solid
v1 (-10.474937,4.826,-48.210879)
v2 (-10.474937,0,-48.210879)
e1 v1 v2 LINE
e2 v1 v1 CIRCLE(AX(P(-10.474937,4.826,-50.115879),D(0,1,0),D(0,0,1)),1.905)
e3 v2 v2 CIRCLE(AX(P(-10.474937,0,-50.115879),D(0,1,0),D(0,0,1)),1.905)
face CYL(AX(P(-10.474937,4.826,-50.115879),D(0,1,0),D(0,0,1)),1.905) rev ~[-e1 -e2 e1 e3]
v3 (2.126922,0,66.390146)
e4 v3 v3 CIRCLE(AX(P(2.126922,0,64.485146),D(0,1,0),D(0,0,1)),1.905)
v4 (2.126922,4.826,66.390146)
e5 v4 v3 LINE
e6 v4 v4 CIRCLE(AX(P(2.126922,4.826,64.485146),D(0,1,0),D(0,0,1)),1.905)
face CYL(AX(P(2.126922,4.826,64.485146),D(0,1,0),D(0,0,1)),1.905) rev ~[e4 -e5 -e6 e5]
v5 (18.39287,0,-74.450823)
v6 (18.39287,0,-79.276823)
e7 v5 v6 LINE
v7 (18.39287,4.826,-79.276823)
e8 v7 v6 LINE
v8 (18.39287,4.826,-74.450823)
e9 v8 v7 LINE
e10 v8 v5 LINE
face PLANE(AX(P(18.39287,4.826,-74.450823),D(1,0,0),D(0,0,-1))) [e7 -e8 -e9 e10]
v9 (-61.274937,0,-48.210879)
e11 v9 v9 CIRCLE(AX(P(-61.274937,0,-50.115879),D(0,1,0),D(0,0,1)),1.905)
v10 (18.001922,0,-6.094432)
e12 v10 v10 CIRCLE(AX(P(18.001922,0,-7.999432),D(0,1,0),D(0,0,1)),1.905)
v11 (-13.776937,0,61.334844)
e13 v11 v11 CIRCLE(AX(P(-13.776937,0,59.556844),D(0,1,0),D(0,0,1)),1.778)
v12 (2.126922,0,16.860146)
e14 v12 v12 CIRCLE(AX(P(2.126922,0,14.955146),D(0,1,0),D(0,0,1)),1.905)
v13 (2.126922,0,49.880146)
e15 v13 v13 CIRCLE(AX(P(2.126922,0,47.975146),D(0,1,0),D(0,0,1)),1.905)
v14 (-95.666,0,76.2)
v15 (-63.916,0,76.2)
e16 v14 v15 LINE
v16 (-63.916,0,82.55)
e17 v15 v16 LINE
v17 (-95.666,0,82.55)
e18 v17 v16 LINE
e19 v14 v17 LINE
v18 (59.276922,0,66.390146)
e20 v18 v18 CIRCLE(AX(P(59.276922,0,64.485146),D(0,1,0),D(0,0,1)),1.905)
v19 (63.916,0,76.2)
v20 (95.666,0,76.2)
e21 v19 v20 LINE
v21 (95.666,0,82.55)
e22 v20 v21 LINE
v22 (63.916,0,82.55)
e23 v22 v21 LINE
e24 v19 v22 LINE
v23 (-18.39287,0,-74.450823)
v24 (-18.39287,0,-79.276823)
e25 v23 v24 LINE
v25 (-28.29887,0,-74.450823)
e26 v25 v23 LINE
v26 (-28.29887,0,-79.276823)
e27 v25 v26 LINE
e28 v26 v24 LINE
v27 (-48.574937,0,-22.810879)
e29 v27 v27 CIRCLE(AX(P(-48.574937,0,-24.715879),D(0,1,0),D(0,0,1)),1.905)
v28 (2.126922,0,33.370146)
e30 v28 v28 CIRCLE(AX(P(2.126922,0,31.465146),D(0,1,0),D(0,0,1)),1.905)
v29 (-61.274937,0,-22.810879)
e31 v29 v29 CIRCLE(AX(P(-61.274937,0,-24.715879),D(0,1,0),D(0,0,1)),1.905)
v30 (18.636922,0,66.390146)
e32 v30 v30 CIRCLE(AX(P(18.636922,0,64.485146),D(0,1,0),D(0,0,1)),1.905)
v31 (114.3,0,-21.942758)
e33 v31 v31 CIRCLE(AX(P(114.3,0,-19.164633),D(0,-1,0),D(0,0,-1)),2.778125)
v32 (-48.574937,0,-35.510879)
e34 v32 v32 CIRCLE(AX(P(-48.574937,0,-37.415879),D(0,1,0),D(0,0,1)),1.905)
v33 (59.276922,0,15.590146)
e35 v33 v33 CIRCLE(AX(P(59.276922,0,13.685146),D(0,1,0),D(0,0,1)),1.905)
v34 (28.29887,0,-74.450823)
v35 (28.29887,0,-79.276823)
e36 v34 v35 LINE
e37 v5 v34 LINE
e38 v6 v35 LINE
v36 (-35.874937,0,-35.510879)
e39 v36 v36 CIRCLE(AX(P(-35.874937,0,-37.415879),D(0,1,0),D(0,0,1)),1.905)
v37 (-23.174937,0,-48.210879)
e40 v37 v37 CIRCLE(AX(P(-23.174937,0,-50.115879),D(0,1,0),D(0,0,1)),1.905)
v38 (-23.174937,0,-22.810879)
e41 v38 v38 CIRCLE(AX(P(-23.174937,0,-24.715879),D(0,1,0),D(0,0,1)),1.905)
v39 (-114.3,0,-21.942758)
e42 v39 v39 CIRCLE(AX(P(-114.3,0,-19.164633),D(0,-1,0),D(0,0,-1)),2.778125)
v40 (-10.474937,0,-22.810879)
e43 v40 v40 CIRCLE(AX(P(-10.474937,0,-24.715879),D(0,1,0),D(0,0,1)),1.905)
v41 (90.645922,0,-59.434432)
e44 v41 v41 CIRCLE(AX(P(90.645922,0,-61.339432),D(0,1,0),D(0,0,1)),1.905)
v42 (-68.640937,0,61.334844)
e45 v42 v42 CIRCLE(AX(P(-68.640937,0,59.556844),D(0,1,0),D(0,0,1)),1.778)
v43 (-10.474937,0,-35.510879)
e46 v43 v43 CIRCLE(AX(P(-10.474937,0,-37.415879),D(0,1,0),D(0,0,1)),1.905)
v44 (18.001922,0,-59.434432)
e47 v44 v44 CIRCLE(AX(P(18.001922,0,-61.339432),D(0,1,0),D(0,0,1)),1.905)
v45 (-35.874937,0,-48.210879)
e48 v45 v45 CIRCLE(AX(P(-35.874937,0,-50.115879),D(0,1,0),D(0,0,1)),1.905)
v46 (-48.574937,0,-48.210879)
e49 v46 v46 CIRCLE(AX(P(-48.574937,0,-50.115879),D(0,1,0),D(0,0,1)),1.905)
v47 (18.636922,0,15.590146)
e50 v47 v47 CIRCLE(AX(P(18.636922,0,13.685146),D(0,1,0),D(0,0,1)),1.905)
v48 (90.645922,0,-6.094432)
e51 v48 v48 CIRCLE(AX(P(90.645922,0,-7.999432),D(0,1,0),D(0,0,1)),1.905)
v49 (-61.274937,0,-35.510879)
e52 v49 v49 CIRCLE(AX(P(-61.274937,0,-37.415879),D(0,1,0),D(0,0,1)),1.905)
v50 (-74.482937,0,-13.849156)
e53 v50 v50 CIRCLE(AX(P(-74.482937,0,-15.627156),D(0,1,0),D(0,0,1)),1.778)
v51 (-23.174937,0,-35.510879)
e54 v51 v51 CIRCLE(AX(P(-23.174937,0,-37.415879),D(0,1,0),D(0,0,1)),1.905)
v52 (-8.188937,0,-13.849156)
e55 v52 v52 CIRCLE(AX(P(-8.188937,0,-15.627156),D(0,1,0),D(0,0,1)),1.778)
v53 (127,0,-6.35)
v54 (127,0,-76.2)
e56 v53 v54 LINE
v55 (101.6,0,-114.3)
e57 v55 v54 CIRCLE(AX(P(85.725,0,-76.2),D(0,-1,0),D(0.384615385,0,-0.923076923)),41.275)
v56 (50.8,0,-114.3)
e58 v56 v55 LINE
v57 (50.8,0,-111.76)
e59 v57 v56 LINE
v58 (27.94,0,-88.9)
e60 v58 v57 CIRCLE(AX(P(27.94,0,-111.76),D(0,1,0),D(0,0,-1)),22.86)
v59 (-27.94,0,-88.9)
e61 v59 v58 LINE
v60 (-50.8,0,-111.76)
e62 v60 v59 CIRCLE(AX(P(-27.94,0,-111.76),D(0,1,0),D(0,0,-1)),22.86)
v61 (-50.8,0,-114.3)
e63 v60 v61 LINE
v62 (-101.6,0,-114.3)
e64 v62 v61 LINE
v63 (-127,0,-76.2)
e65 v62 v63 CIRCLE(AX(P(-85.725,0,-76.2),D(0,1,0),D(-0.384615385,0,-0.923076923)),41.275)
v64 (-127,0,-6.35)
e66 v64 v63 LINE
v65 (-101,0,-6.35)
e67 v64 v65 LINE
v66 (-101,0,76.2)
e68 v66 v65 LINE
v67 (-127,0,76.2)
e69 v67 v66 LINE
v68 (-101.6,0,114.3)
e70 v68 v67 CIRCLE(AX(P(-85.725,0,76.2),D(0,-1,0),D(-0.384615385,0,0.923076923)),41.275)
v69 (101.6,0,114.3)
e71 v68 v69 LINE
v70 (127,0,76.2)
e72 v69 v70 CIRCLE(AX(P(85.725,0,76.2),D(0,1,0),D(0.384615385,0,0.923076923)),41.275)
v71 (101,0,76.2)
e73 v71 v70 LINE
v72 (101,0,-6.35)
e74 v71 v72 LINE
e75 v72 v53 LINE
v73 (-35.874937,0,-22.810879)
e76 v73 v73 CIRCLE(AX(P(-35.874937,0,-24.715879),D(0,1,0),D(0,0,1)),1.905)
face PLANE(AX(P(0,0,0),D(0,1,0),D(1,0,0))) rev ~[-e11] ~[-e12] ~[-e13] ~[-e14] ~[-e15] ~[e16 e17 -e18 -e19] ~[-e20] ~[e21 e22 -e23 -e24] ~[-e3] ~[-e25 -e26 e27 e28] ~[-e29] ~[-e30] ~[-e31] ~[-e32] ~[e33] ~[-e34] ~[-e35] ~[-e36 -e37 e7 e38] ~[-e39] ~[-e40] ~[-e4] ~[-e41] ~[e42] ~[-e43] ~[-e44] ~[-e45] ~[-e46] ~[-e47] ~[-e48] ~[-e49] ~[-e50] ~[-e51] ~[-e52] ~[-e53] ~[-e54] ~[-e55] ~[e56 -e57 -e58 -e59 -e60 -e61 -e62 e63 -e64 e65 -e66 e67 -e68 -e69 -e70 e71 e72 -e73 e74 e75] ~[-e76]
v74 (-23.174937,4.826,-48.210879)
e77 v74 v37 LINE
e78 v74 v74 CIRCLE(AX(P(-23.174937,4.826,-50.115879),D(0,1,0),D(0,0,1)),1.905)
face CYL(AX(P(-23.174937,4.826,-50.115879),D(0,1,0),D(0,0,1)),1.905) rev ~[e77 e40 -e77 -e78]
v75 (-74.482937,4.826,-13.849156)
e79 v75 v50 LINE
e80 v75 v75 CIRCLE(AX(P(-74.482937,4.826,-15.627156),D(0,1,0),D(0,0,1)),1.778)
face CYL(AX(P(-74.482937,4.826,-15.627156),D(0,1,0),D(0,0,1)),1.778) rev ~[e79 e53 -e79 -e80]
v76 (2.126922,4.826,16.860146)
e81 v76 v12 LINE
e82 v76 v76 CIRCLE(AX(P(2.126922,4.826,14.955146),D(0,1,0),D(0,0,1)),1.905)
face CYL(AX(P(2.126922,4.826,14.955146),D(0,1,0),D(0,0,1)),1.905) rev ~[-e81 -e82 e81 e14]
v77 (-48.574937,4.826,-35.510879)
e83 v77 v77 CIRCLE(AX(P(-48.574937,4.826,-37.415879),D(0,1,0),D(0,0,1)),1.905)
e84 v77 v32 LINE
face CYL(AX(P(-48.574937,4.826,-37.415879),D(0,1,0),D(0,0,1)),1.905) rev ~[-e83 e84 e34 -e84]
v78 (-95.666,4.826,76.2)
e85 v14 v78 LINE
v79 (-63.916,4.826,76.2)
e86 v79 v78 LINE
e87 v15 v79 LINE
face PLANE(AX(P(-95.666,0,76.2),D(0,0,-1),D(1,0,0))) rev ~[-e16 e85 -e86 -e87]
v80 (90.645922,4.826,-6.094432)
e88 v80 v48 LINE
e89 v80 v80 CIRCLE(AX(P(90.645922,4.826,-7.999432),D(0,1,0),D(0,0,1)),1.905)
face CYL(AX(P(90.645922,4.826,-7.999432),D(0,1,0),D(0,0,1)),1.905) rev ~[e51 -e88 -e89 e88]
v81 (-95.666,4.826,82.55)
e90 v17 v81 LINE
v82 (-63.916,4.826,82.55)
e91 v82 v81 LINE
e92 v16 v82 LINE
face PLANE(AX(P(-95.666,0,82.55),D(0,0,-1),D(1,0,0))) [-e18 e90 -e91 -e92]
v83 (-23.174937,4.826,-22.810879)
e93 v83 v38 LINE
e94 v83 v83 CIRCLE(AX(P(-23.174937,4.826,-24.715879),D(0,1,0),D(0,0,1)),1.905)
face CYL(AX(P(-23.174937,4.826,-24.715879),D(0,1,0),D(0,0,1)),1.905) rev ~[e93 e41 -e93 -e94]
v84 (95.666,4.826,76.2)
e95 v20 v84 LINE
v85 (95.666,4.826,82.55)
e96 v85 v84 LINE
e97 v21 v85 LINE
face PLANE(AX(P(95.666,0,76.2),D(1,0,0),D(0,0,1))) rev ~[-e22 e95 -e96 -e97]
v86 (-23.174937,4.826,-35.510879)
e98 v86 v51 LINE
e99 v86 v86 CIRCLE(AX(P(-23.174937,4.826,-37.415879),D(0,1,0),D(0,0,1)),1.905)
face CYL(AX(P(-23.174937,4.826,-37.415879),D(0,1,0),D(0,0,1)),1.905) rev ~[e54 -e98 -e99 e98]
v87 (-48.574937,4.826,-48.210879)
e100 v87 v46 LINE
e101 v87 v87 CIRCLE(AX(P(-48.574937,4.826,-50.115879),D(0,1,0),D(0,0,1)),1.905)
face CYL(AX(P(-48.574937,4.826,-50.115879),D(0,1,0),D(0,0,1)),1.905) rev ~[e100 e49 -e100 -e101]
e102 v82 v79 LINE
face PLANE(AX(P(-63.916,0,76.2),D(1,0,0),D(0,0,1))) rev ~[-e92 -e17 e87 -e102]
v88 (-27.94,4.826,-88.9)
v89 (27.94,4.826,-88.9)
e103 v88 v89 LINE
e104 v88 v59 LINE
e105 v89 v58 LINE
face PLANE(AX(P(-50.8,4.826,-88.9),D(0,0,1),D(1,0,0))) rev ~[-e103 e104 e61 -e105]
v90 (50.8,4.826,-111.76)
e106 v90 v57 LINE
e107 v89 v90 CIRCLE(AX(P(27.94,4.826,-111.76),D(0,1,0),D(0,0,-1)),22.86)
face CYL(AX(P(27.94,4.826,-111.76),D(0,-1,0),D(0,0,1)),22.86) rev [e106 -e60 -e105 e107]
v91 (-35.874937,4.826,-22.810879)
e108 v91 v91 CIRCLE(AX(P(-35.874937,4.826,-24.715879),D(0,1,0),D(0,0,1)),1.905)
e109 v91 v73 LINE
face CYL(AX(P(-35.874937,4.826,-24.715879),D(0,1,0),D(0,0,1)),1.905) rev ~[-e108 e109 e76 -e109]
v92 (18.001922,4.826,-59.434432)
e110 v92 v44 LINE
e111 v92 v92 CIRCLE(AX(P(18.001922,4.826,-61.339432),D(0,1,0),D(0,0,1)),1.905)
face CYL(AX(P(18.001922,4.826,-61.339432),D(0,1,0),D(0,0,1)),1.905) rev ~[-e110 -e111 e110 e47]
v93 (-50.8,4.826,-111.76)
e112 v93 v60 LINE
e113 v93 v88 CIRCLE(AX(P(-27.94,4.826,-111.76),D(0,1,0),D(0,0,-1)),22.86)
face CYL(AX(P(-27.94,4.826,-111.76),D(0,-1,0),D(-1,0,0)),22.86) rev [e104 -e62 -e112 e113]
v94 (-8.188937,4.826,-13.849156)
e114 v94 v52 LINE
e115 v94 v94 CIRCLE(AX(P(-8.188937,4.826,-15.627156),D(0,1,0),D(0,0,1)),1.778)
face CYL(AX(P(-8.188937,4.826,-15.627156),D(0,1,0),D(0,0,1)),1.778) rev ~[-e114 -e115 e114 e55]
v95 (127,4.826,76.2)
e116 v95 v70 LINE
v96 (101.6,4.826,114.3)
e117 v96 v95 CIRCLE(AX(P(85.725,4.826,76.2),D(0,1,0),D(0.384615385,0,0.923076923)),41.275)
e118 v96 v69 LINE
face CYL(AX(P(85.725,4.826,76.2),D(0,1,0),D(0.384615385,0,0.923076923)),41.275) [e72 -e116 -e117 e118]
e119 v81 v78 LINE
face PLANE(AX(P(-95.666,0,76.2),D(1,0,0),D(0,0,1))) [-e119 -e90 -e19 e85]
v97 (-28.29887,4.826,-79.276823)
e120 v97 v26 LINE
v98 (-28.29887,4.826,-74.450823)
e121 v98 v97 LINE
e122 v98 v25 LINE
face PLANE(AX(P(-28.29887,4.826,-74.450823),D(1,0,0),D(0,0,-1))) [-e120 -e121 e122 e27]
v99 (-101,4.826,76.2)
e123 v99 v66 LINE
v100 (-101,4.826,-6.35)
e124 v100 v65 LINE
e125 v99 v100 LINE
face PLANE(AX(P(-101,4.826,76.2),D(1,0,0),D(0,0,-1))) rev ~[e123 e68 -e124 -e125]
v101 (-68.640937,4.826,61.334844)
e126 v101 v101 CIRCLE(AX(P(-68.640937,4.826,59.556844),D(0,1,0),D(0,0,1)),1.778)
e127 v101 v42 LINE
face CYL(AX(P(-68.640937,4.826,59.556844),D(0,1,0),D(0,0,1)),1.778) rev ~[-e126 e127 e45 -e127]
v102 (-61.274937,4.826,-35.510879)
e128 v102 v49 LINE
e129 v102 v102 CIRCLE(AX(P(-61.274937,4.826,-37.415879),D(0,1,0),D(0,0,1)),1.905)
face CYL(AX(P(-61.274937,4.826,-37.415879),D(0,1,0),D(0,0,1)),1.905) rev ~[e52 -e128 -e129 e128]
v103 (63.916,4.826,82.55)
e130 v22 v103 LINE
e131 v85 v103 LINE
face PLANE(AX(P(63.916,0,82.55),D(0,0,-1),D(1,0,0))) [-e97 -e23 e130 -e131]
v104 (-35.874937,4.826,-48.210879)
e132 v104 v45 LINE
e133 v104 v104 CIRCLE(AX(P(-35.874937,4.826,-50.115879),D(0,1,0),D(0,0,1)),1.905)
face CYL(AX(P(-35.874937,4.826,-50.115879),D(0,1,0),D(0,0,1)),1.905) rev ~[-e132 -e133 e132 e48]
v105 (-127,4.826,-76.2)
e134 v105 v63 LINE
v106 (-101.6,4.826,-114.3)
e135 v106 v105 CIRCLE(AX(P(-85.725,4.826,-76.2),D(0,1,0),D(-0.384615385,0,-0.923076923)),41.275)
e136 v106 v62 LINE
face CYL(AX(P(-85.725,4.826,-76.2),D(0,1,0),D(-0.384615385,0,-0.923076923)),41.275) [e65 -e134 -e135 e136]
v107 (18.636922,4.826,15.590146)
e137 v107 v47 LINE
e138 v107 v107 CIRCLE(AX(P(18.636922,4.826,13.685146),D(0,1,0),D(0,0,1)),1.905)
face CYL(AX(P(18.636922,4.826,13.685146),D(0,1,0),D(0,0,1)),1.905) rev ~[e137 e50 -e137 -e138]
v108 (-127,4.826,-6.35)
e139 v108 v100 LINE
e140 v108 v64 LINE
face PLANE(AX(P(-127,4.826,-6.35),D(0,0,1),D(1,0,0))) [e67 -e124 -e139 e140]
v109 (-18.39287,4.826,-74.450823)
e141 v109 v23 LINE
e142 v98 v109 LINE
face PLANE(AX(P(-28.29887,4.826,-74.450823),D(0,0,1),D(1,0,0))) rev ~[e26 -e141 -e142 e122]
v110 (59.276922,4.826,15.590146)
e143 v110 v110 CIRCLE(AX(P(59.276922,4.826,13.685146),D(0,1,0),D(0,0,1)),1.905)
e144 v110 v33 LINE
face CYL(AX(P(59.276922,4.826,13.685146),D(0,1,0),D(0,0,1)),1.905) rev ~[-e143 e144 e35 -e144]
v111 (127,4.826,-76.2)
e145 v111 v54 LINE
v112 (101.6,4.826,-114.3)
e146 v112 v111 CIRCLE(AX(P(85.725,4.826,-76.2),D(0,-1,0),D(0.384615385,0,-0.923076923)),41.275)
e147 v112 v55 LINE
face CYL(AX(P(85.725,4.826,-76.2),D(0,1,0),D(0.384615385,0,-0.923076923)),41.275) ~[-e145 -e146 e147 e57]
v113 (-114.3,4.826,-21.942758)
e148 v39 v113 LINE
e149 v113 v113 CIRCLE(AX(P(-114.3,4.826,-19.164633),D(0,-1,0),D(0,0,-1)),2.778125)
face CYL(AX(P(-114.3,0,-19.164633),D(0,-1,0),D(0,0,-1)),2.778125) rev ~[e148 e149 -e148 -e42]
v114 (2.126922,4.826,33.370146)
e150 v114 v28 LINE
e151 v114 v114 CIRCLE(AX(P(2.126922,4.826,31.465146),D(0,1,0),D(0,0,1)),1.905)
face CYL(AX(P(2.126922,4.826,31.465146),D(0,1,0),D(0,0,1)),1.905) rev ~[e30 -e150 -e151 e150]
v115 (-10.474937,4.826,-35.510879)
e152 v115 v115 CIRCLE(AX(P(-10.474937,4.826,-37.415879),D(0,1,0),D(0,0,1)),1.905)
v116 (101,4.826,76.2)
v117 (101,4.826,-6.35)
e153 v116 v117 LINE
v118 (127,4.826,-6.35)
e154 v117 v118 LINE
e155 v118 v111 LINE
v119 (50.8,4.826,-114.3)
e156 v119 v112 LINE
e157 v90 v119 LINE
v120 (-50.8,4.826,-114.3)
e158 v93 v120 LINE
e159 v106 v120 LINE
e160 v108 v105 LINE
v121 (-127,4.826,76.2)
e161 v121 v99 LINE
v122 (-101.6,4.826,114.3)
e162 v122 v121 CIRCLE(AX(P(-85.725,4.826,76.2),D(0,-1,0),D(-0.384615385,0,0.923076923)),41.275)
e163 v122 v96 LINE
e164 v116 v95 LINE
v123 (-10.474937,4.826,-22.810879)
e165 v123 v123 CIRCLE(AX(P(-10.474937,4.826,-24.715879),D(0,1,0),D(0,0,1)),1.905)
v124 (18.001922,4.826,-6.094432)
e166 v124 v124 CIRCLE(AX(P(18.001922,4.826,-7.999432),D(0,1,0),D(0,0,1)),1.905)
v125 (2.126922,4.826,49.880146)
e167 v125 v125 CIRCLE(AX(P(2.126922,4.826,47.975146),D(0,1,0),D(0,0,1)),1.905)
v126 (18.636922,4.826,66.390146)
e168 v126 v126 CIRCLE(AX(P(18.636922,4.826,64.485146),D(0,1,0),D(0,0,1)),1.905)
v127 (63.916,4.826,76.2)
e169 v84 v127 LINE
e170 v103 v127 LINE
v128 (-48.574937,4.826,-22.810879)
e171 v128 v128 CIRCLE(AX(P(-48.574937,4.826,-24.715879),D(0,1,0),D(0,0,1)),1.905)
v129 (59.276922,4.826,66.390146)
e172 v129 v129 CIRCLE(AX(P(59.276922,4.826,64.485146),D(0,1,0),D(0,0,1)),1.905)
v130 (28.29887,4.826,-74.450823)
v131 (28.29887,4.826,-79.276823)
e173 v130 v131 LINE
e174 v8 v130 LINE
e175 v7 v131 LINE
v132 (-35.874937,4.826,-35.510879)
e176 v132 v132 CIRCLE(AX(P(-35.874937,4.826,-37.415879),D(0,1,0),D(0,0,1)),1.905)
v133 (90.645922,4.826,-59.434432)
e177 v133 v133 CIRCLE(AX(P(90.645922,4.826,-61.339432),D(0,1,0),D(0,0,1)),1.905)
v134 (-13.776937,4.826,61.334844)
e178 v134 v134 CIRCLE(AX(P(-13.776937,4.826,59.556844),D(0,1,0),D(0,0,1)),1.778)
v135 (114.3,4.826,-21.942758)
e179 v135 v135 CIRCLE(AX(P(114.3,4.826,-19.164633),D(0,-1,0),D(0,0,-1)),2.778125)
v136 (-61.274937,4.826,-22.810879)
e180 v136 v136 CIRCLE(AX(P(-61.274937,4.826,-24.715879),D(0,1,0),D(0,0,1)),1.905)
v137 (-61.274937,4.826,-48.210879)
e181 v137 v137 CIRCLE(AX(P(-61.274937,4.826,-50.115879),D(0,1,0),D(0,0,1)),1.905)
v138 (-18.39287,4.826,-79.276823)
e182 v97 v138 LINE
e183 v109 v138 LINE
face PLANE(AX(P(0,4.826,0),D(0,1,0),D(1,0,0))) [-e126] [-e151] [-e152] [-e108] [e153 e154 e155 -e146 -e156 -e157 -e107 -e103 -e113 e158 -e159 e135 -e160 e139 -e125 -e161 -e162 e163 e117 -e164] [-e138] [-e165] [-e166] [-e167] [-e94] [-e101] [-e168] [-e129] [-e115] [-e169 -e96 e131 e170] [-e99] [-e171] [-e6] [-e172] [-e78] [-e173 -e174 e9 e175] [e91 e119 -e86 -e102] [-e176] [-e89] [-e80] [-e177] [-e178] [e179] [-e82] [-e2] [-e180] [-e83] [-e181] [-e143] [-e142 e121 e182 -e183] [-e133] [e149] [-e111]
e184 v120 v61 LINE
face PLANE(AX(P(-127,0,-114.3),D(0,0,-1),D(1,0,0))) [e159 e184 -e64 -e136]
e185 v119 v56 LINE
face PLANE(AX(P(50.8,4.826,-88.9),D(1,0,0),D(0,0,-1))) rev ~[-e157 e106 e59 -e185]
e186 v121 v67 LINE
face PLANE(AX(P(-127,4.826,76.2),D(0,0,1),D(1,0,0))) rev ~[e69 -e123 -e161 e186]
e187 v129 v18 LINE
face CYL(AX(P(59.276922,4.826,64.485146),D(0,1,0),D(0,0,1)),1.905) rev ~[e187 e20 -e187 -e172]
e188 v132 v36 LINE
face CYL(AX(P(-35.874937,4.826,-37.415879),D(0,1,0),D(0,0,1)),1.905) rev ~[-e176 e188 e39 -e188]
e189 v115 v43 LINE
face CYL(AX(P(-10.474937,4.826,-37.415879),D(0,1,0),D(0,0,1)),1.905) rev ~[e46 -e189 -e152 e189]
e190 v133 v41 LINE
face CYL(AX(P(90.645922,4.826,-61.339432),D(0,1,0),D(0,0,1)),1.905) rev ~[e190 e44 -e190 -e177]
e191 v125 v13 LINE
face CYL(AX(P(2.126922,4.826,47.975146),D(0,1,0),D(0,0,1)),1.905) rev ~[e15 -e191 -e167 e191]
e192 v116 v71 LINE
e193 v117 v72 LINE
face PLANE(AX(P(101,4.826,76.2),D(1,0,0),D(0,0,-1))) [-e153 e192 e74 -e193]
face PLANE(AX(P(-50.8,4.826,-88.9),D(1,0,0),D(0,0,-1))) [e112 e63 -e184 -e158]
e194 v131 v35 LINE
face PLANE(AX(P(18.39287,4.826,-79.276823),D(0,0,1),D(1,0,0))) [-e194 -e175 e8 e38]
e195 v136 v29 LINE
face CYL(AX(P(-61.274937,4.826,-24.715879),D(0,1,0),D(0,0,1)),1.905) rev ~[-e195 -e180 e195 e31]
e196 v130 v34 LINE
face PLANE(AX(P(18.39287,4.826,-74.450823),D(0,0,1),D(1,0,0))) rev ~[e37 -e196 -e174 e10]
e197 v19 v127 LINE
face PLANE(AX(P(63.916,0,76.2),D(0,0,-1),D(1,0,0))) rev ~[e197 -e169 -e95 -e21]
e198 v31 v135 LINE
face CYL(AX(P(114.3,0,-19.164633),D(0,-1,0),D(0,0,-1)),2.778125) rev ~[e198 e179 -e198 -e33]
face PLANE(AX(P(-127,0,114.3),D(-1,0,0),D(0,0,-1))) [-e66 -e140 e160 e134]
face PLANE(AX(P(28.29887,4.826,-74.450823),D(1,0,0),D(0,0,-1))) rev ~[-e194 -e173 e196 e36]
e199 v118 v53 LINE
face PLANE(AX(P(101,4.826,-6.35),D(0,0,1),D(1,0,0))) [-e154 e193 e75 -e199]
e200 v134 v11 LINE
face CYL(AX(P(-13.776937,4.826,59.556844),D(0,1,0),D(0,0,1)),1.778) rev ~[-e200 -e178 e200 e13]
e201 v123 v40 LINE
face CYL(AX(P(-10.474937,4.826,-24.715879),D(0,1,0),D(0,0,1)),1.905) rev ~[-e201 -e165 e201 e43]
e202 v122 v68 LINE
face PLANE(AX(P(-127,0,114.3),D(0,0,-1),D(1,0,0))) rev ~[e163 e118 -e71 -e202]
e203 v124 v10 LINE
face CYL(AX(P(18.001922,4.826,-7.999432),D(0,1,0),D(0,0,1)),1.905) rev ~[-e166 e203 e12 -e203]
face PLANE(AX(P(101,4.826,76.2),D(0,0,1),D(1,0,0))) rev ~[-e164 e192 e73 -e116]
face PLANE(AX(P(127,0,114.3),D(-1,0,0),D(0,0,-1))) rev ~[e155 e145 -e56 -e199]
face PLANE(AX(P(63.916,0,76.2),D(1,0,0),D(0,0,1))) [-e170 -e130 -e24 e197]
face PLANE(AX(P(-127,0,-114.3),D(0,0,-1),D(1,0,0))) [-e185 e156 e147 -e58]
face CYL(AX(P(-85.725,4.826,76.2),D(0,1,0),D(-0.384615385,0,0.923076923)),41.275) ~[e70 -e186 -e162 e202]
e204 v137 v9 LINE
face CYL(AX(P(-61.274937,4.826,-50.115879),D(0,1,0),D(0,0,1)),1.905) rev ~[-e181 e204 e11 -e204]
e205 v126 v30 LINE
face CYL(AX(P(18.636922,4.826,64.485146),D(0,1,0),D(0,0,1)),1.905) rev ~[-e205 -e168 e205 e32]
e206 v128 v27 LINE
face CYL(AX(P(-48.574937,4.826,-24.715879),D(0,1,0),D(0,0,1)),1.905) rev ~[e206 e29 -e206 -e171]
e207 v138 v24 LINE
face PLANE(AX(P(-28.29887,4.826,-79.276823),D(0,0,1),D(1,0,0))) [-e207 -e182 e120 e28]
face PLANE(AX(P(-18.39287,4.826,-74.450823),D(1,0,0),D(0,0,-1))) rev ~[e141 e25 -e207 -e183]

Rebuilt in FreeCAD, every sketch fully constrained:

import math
import FreeCAD as App
import Part
import Sketcher
from FreeCAD import Vector
Q = App.Units.Quantity


def edges_at(feature, points):
    """Names of the edges that pass closest to the given points."""
    edges = feature.Shape.Edges
    near = lambda p: min(range(len(edges)), key=lambda i: edges[i].distToShape(Part.Vertex(*p))[0])
    return sorted({f"Edge{near(p) + 1}" for p in points})


def add_polygon(sketch, points):
    """Adds a closed chain of lines whose ends are joined by coincident constraints."""
    first, n = sketch.GeometryCount, len(points)
    for a, b in zip(points, points[1:] + points[:1]):
        sketch.addGeometry(Part.LineSegment(App.Vector(*a, 0), App.Vector(*b, 0)), False)
    for i in range(n):
        sketch.addConstraint(Sketcher.Constraint("Coincident", first + i, 2, first + (i + 1) % n, 1))

doc = App.newDocument("Part")
body = doc.addObject("PartDesign::Body", "Body")

sketch1 = body.newObject("Sketcher::SketchObject", "Sketch")
sketch1.AttachmentSupport = (doc.getObject("XZ_Plane"), [""])
sketch1.MapMode = "FlatFace"
add_polygon(sketch1, [(-127, -114), (-127, 114), (127, 114), (127, -114)])
sketch1.addConstraint([
    Sketcher.Constraint("Vertical", 0),
    Sketcher.Constraint("Horizontal", 1),
    Sketcher.Constraint("Vertical", 2),
    Sketcher.Constraint("Horizontal", 3),
    Sketcher.Constraint("Symmetric", 0, 2, 2, 2, -1, 1),
    Sketcher.Constraint("DistanceX", 1, 1, 1, 2, Q("10 in")),
    Sketcher.Constraint("DistanceY", 0, 1, 0, 2, Q("9 in")),
])
pad1 = body.newObject("PartDesign::Pad", "Pad")
pad1.Profile = sketch1
pad1.Length = Q("0.19 in")
pad1.Reversed = True

sketch2 = body.newObject("Sketcher::SketchObject", "Sketch001")
sketch2.AttachmentSupport = (doc.getObject("XZ_Plane"), [""])
sketch2.MapMode = "FlatFace"
sketch2.AttachmentOffset = App.Placement(Vector(0, 0, -0.19 * 25.4), App.Rotation())
add_polygon(sketch2, [(-127, -6), (-127, 76), (-101, 76), (-101, -6)])
add_polygon(sketch2, [(101, -6), (101, 76), (127, 76), (127, -6)])
sketch2.addConstraint([
    Sketcher.Constraint("Vertical", 0),
    Sketcher.Constraint("Horizontal", 1),
    Sketcher.Constraint("Vertical", 2),
    Sketcher.Constraint("Horizontal", 3),
    Sketcher.Constraint("Vertical", 4),
    Sketcher.Constraint("Horizontal", 5),
    Sketcher.Constraint("Vertical", 6),
    Sketcher.Constraint("Horizontal", 7),
    Sketcher.Constraint("Symmetric", 1, 2, 4, 2, -2),
    Sketcher.Constraint("Symmetric", 3, 2, 6, 2, -2),
    Sketcher.Constraint("DistanceX", 0, 2, -1, 1, Q("5 in")),
    Sketcher.Constraint("DistanceY", -1, 1, 0, 2, Q("3 in")),
    Sketcher.Constraint("DistanceY", 0, 1, 0, 2, Q("3.25 in")),
    Sketcher.Constraint("DistanceX", 1, 1, 1, 2, Q("26 mm")),
])
pocket1 = body.newObject("PartDesign::Pocket", "Pocket")
pocket1.Profile = sketch2
pocket1.Length = Q("0.19 in")
pocket1.Reversed = True

sketch3 = body.newObject("Sketcher::SketchObject", "Sketch002")
sketch3.AttachmentSupport = (doc.getObject("XZ_Plane"), [""])
sketch3.MapMode = "FlatFace"
sketch3.AttachmentOffset = App.Placement(Vector(0, 0, -0.19 * 25.4), App.Rotation())
sketch3.addGeometry([
    Part.LineSegment(Vector(-127, -114, 0), Vector(-127, -76, 0)),
    Part.ArcOfCircle(Part.Circle(Vector(-86, -76, 0), Vector(0, 0, 1), 41), math.radians(180), math.radians(247)),
    Part.LineSegment(Vector(-102, -114, 0), Vector(-127, -114, 0)),
    Part.LineSegment(Vector(127, -76, 0), Vector(127, -114, 0)),
    Part.LineSegment(Vector(127, -114, 0), Vector(102, -114, 0)),
    Part.ArcOfCircle(Part.Circle(Vector(86, -76, 0), Vector(0, 0, 1), 41), math.radians(-67), math.radians(0)),
], False)
sketch3.addConstraint([
    Sketcher.Constraint("Tangent", 0, 2, 1, 1),
    Sketcher.Constraint("Coincident", 1, 2, 2, 1),
    Sketcher.Constraint("Coincident", 2, 2, 0, 1),
    Sketcher.Constraint("Coincident", 3, 2, 4, 1),
    Sketcher.Constraint("Coincident", 4, 2, 5, 1),
    Sketcher.Constraint("Tangent", 5, 2, 3, 1),
    Sketcher.Constraint("Vertical", 0),
    Sketcher.Constraint("Horizontal", 2),
    Sketcher.Constraint("Vertical", 3),
    Sketcher.Constraint("Horizontal", 4),
    Sketcher.Constraint("Equal", 1, 5),
    Sketcher.Constraint("Symmetric", 1, 3, 5, 3, -2),
    Sketcher.Constraint("Horizontal", 2, 2, 3, 2),
    Sketcher.Constraint("DistanceX", 2, 2, 2, 1, Q("1 in")),
    Sketcher.Constraint("DistanceY", 0, 1, 0, 2, Q("1.5 in")),
    Sketcher.Constraint("DistanceY", 1, 3, -1, 1, Q("3 in")),
    Sketcher.Constraint("DistanceX", 0, 2, -1, 1, Q("5 in")),
])
pocket2 = body.newObject("PartDesign::Pocket", "Pocket001")
pocket2.Profile = sketch3
pocket2.Length = Q("0.19 in")
pocket2.Reversed = True

sketch4 = body.newObject("Sketcher::SketchObject", "Sketch003")
sketch4.AttachmentSupport = (doc.getObject("XZ_Plane"), [""])
sketch4.MapMode = "FlatFace"
sketch4.AttachmentOffset = App.Placement(Vector(0, 0, -0.19 * 25.4), App.Rotation())
add_polygon(sketch4, [(-51, -114), (-51, -89), (51, -89), (51, -114)])
sketch4.addConstraint([
    Sketcher.Constraint("Vertical", 0),
    Sketcher.Constraint("Horizontal", 1),
    Sketcher.Constraint("Vertical", 2),
    Sketcher.Constraint("Horizontal", 3),
    Sketcher.Constraint("DistanceX", 1, 1, 1, 2, Q("4 in")),
    Sketcher.Constraint("DistanceY", 0, 1, 0, 2, Q("1 in")),
    Sketcher.Constraint("DistanceX", 0, 2, -1, 1, Q("2 in")),
    Sketcher.Constraint("DistanceY", 0, 2, -1, 1, Q("3.5 in")),
])
pocket3 = body.newObject("PartDesign::Pocket", "Pocket002")
pocket3.Profile = sketch4
pocket3.Length = Q("0.19 in")
pocket3.Reversed = True
doc.recompute()

fillet = body.newObject("PartDesign::Fillet", "Fillet")
fillet.Base = (pocket3, edges_at(pocket3, [(-50.8, 2.413, -88.9)]))
fillet.Radius = Q("0.9 in")
doc.recompute()

fillet2 = body.newObject("PartDesign::Fillet", "Fillet001")
fillet2.Base = (fillet, edges_at(fillet, [(50.8, 2.413, -88.9)]))
fillet2.Radius = Q("0.9 in")

sketch5 = body.newObject("Sketcher::SketchObject", "Sketch004")
sketch5.AttachmentSupport = (doc.getObject("XZ_Plane"), [""])
sketch5.MapMode = "FlatFace"
sketch5.AttachmentOffset = App.Placement(Vector(0, 0, -0.19 * 25.4), App.Rotation())
sketch5.addGeometry([
    Part.LineSegment(Vector(-127, 76, 0), Vector(-127, 114, 0)),
    Part.LineSegment(Vector(-127, 114, 0), Vector(-102, 114, 0)),
    Part.ArcOfCircle(Part.Circle(Vector(-86, 76, 0), Vector(0, 0, 1), 41), math.radians(113), math.radians(180)),
    Part.LineSegment(Vector(102, 114, 0), Vector(127, 114, 0)),
    Part.LineSegment(Vector(127, 114, 0), Vector(127, 76, 0)),
    Part.ArcOfCircle(Part.Circle(Vector(86, 76, 0), Vector(0, 0, 1), 41), math.radians(0), math.radians(67)),
], False)
sketch5.addConstraint([
    Sketcher.Constraint("Coincident", 0, 2, 1, 1),
    Sketcher.Constraint("Coincident", 1, 2, 2, 1),
    Sketcher.Constraint("Tangent", 2, 2, 0, 1),
    Sketcher.Constraint("Coincident", 3, 2, 4, 1),
    Sketcher.Constraint("Tangent", 4, 2, 5, 1),
    Sketcher.Constraint("Coincident", 5, 2, 3, 1),
    Sketcher.Constraint("Vertical", 0),
    Sketcher.Constraint("Horizontal", 1),
    Sketcher.Constraint("Horizontal", 3),
    Sketcher.Constraint("Vertical", 4),
    Sketcher.Constraint("Equal", 2, 5),
    Sketcher.Constraint("Symmetric", 2, 3, 5, 3, -2),
    Sketcher.Constraint("Horizontal", 1, 2, 3, 2),
    Sketcher.Constraint("DistanceX", 1, 1, 1, 2, Q("1 in")),
    Sketcher.Constraint("DistanceY", 0, 1, 0, 2, Q("1.5 in")),
    Sketcher.Constraint("DistanceY", -1, 1, 2, 3, Q("3 in")),
    Sketcher.Constraint("DistanceX", 0, 2, -1, 1, Q("5 in")),
])
pocket4 = body.newObject("PartDesign::Pocket", "Pocket003")
pocket4.Profile = sketch5
pocket4.Length = Q("0.19 in")
pocket4.Reversed = True

sketch6 = body.newObject("Sketcher::SketchObject", "Sketch005")
sketch6.AttachmentSupport = (doc.getObject("XZ_Plane"), [""])
sketch6.MapMode = "FlatFace"
add_polygon(sketch6, [(-96, 83), (-96, 76), (-64, 76), (-64, 83)])
add_polygon(sketch6, [(64, 83), (64, 76), (96, 76), (96, 83)])
sketch6.addConstraint([
    Sketcher.Constraint("Vertical", 0),
    Sketcher.Constraint("Horizontal", 1),
    Sketcher.Constraint("Vertical", 2),
    Sketcher.Constraint("Horizontal", 3),
    Sketcher.Constraint("Vertical", 4),
    Sketcher.Constraint("Horizontal", 5),
    Sketcher.Constraint("Vertical", 6),
    Sketcher.Constraint("Horizontal", 7),
    Sketcher.Constraint("Symmetric", 1, 2, 4, 2, -2),
    Sketcher.Constraint("Symmetric", 3, 2, 6, 2, -2),
    Sketcher.Constraint("DistanceY", -1, 1, 0, 2, Q("3 in")),
    Sketcher.Constraint("DistanceX", 1, 1, 1, 2, Q("1.25 in")),
    Sketcher.Constraint("DistanceY", 0, 2, 0, 1, Q("0.25 in")),
    Sketcher.Constraint("DistanceX", 0, 2, -1, 1, Q("95.666 mm")),
])
pocket5 = body.newObject("PartDesign::Pocket", "Pocket004")
pocket5.Profile = sketch6
pocket5.Type = "ThroughAll"

sketch7 = body.newObject("Sketcher::SketchObject", "Sketch006")
sketch7.AttachmentSupport = (doc.getObject("XZ_Plane"), [""])
sketch7.MapMode = "FlatFace"
sketch7.AttachmentOffset = App.Placement(Vector(0, 0, -0.19 * 25.4), App.Rotation())
add_polygon(sketch7, [(-28.3, -79.3), (-28.3, -74.5), (-18.4, -74.5), (-18.4, -79.3)])
add_polygon(sketch7, [(18.4, -79.3), (18.4, -74.5), (28.3, -74.5), (28.3, -79.3)])
sketch7.addConstraint([
    Sketcher.Constraint("Vertical", 0),
    Sketcher.Constraint("Horizontal", 1),
    Sketcher.Constraint("Vertical", 2),
    Sketcher.Constraint("Horizontal", 3),
    Sketcher.Constraint("Vertical", 4),
    Sketcher.Constraint("Horizontal", 5),
    Sketcher.Constraint("Vertical", 6),
    Sketcher.Constraint("Horizontal", 7),
    Sketcher.Constraint("Symmetric", 1, 2, 4, 2, -2),
    Sketcher.Constraint("Symmetric", 3, 2, 6, 2, -2),
    Sketcher.Constraint("DistanceX", 1, 1, 1, 2, Q("0.39 in")),
    Sketcher.Constraint("DistanceY", 0, 1, 0, 2, Q("0.19 in")),
    Sketcher.Constraint("DistanceX", 0, 2, -1, 1, Q("28.29887 mm")),
    Sketcher.Constraint("DistanceY", 0, 2, -1, 1, Q("74.450823 mm")),
])
pocket6 = body.newObject("PartDesign::Pocket", "Pocket005")
pocket6.Profile = sketch7
pocket6.Type = "ThroughAll"
pocket6.Reversed = True

sketch8 = body.newObject("Sketcher::SketchObject", "Sketch007")
sketch8.AttachmentSupport = (doc.getObject("XZ_Plane"), [""])
sketch8.MapMode = "FlatFace"
sketch8.AttachmentOffset = App.Placement(Vector(0, 0, -0.19 * 25.4), App.Rotation())
sketch8.addGeometry([
    Part.Circle(Vector(-10.5, -24.7, 0), Vector(0, 0, 1), 1.9),
    Part.Circle(Vector(-23.2, -24.7, 0), Vector(0, 0, 1), 1.9),
    Part.Circle(Vector(-35.9, -24.7, 0), Vector(0, 0, 1), 1.9),
    Part.Circle(Vector(-48.6, -24.7, 0), Vector(0, 0, 1), 1.9),
    Part.Circle(Vector(-61.3, -24.7, 0), Vector(0, 0, 1), 1.9),
    Part.Circle(Vector(-23.2, -37.4, 0), Vector(0, 0, 1), 1.9),
    Part.Circle(Vector(-35.9, -37.4, 0), Vector(0, 0, 1), 1.9),
    Part.Circle(Vector(-48.6, -37.4, 0), Vector(0, 0, 1), 1.9),
    Part.Circle(Vector(-61.3, -37.4, 0), Vector(0, 0, 1), 1.9),
    Part.Circle(Vector(-23.2, -50.1, 0), Vector(0, 0, 1), 1.9),
    Part.Circle(Vector(-35.9, -50.1, 0), Vector(0, 0, 1), 1.9),
    Part.Circle(Vector(-48.6, -50.1, 0), Vector(0, 0, 1), 1.9),
    Part.Circle(Vector(-61.3, -50.1, 0), Vector(0, 0, 1), 1.9),
    Part.Circle(Vector(-10.5, -37.4, 0), Vector(0, 0, 1), 1.9),
    Part.Circle(Vector(-10.5, -50.1, 0), Vector(0, 0, 1), 1.9),
], False)
sketch8.addConstraint([
    Sketcher.Constraint("Equal", 0, 1),
    Sketcher.Constraint("Equal", 1, 2),
    Sketcher.Constraint("Equal", 2, 3),
    Sketcher.Constraint("Equal", 3, 4),
    Sketcher.Constraint("Equal", 4, 5),
    Sketcher.Constraint("Equal", 5, 6),
    Sketcher.Constraint("Equal", 6, 7),
    Sketcher.Constraint("Equal", 7, 8),
    Sketcher.Constraint("Equal", 8, 9),
    Sketcher.Constraint("Equal", 9, 10),
    Sketcher.Constraint("Equal", 10, 11),
    Sketcher.Constraint("Equal", 11, 12),
    Sketcher.Constraint("Equal", 12, 13),
    Sketcher.Constraint("Equal", 13, 14),
    Sketcher.Constraint("Horizontal", 0, 3, 1, 3),
    Sketcher.Constraint("Horizontal", 1, 3, 2, 3),
    Sketcher.Constraint("Horizontal", 2, 3, 3, 3),
    Sketcher.Constraint("Horizontal", 3, 3, 4, 3),
    Sketcher.Constraint("Horizontal", 5, 3, 6, 3),
    Sketcher.Constraint("Horizontal", 6, 3, 7, 3),
    Sketcher.Constraint("Horizontal", 7, 3, 8, 3),
    Sketcher.Constraint("Horizontal", 9, 3, 10, 3),
    Sketcher.Constraint("Horizontal", 10, 3, 11, 3),
    Sketcher.Constraint("Horizontal", 11, 3, 12, 3),
    Sketcher.Constraint("Horizontal", 8, 3, 13, 3),
    Sketcher.Constraint("Horizontal", 12, 3, 14, 3),
    Sketcher.Constraint("Vertical", 1, 3, 5, 3),
    Sketcher.Constraint("Vertical", 2, 3, 6, 3),
    Sketcher.Constraint("Vertical", 3, 3, 7, 3),
    Sketcher.Constraint("Vertical", 4, 3, 8, 3),
    Sketcher.Constraint("Vertical", 5, 3, 9, 3),
    Sketcher.Constraint("Vertical", 6, 3, 10, 3),
    Sketcher.Constraint("Vertical", 7, 3, 11, 3),
    Sketcher.Constraint("Vertical", 8, 3, 12, 3),
    Sketcher.Constraint("Vertical", 0, 3, 13, 3),
    Sketcher.Constraint("Vertical", 13, 3, 14, 3),
    Sketcher.Constraint("Diameter", 0, Q("0.15 in")),
    Sketcher.Constraint("DistanceX", 2, 3, 0, 3, Q("1 in")),
    Sketcher.Constraint("DistanceX", 3, 3, 1, 3, Q("1 in")),
    Sketcher.Constraint("DistanceX", 4, 3, 2, 3, Q("1 in")),
    Sketcher.Constraint("DistanceY", 9, 3, 1, 3, Q("1 in")),
    Sketcher.Constraint("DistanceX", 1, 3, 0, 3, Q("0.5 in")),
    Sketcher.Constraint("DistanceY", 5, 3, 1, 3, Q("0.5 in")),
    Sketcher.Constraint("DistanceY", 0, 3, -1, 1, Q("24.715879 mm")),
    Sketcher.Constraint("DistanceX", 0, 3, -1, 1, Q("10.474937 mm")),
])
pocket7 = body.newObject("PartDesign::Pocket", "Pocket006")
pocket7.Profile = sketch8
pocket7.Type = "ThroughAll"
pocket7.Reversed = True

sketch9 = body.newObject("Sketcher::SketchObject", "Sketch008")
sketch9.AttachmentSupport = (doc.getObject("XZ_Plane"), [""])
sketch9.MapMode = "FlatFace"
sketch9.AttachmentOffset = App.Placement(Vector(0, 0, -0.19 * 25.4), App.Rotation())
sketch9.addGeometry([
    Part.Circle(Vector(-68.6, 59.6, 0), Vector(0, 0, 1), 1.8),
    Part.Circle(Vector(-13.8, 59.6, 0), Vector(0, 0, 1), 1.8),
    Part.Circle(Vector(-74.5, -15.6, 0), Vector(0, 0, 1), 1.8),
    Part.Circle(Vector(-8.2, -15.6, 0), Vector(0, 0, 1), 1.8),
], False)
sketch9.addConstraint([
    Sketcher.Constraint("Equal", 0, 1),
    Sketcher.Constraint("Equal", 1, 2),
    Sketcher.Constraint("Equal", 2, 3),
    Sketcher.Constraint("Horizontal", 0, 3, 1, 3),
    Sketcher.Constraint("Horizontal", 2, 3, 3, 3),
    Sketcher.Constraint("Diameter", 0, Q("0.14 in")),
    Sketcher.Constraint("DistanceX", 0, 3, 1, 3, Q("2.16 in")),
    Sketcher.Constraint("DistanceX", 2, 3, 0, 3, Q("0.23 in")),
    Sketcher.Constraint("DistanceY", 2, 3, 0, 3, Q("2.96 in")),
    Sketcher.Constraint("DistanceX", 2, 3, 3, 3, Q("2.61 in")),
    Sketcher.Constraint("DistanceX", 0, 3, -1, 1, Q("68.640937 mm")),
    Sketcher.Constraint("DistanceY", -1, 1, 0, 3, Q("59.556844 mm")),
])
pocket8 = body.newObject("PartDesign::Pocket", "Pocket007")
pocket8.Profile = sketch9
pocket8.Type = "ThroughAll"
pocket8.Reversed = True

sketch10 = body.newObject("Sketcher::SketchObject", "Sketch009")
sketch10.AttachmentSupport = (doc.getObject("XZ_Plane"), [""])
sketch10.MapMode = "FlatFace"
sketch10.AttachmentOffset = App.Placement(Vector(0, 0, -0.19 * 25.4), App.Rotation())
sketch10.addGeometry([
    Part.Circle(Vector(59.3, 64.5, 0), Vector(0, 0, 1), 1.9),
    Part.Circle(Vector(18.6, 64.5, 0), Vector(0, 0, 1), 1.9),
    Part.Circle(Vector(59.3, 13.7, 0), Vector(0, 0, 1), 1.9),
    Part.Circle(Vector(18.6, 13.7, 0), Vector(0, 0, 1), 1.9),
], False)
sketch10.addConstraint([
    Sketcher.Constraint("Equal", 0, 1),
    Sketcher.Constraint("Equal", 1, 2),
    Sketcher.Constraint("Equal", 2, 3),
    Sketcher.Constraint("Horizontal", 0, 3, 1, 3),
    Sketcher.Constraint("Horizontal", 2, 3, 3, 3),
    Sketcher.Constraint("Vertical", 0, 3, 2, 3),
    Sketcher.Constraint("Vertical", 1, 3, 3, 3),
    Sketcher.Constraint("Diameter", 0, Q("0.15 in")),
    Sketcher.Constraint("DistanceY", 2, 3, 0, 3, Q("2 in")),
    Sketcher.Constraint("DistanceX", 1, 3, 0, 3, Q("1.6 in")),
    Sketcher.Constraint("DistanceX", -1, 1, 0, 3, Q("59.276922 mm")),
    Sketcher.Constraint("DistanceY", -1, 1, 0, 3, Q("64.485146 mm")),
])
pocket9 = body.newObject("PartDesign::Pocket", "Pocket008")
pocket9.Profile = sketch10
pocket9.Type = "ThroughAll"
pocket9.Reversed = True

sketch11 = body.newObject("Sketcher::SketchObject", "Sketch010")
sketch11.AttachmentSupport = (doc.getObject("XZ_Plane"), [""])
sketch11.MapMode = "FlatFace"
sketch11.AttachmentOffset = App.Placement(Vector(0, 0, -0.19 * 25.4), App.Rotation())
sketch11.addGeometry([
    Part.Circle(Vector(90.6, -8, 0), Vector(0, 0, 1), 1.9),
    Part.Circle(Vector(18, -8, 0), Vector(0, 0, 1), 1.9),
    Part.Circle(Vector(18, -61.3, 0), Vector(0, 0, 1), 1.9),
    Part.Circle(Vector(90.6, -61.3, 0), Vector(0, 0, 1), 1.9),
], False)
sketch11.addConstraint([
    Sketcher.Constraint("Equal", 0, 1),
    Sketcher.Constraint("Equal", 1, 2),
    Sketcher.Constraint("Equal", 2, 3),
    Sketcher.Constraint("Horizontal", 0, 3, 1, 3),
    Sketcher.Constraint("Horizontal", 2, 3, 3, 3),
    Sketcher.Constraint("Vertical", 1, 3, 2, 3),
    Sketcher.Constraint("Vertical", 0, 3, 3, 3),
    Sketcher.Constraint("Diameter", 0, Q("0.15 in")),
    Sketcher.Constraint("DistanceY", 2, 3, 1, 3, Q("2.1 in")),
    Sketcher.Constraint("DistanceX", 1, 3, 0, 3, Q("2.86 in")),
    Sketcher.Constraint("DistanceX", -1, 1, 0, 3, Q("90.645922 mm")),
    Sketcher.Constraint("DistanceY", 0, 3, -1, 1, Q("7.999432 mm")),
])
pocket10 = body.newObject("PartDesign::Pocket", "Pocket009")
pocket10.Profile = sketch11
pocket10.Type = "ThroughAll"
pocket10.Reversed = True

sketch12 = body.newObject("Sketcher::SketchObject", "Sketch011")
sketch12.AttachmentSupport = (doc.getObject("XZ_Plane"), [""])
sketch12.MapMode = "FlatFace"
sketch12.addGeometry([
    Part.Circle(Vector(114.3, -19.2, 0), Vector(0, 0, 1), 2.8),
    Part.Circle(Vector(-114.3, -19.2, 0), Vector(0, 0, 1), 2.8),
], False)
sketch12.addConstraint([
    Sketcher.Constraint("Equal", 0, 1),
    Sketcher.Constraint("Symmetric", 0, 3, 1, 3, -2),
    Sketcher.Constraint("Diameter", 0, Q("0.21875 in")),
    Sketcher.Constraint("DistanceX", 1, 3, 0, 3, Q("9 in")),
    Sketcher.Constraint("DistanceY", 0, 3, -1, 1, Q("19.164633 mm")),
])
pocket11 = body.newObject("PartDesign::Pocket", "Pocket010")
pocket11.Profile = sketch12
pocket11.Type = "ThroughAll"

sketch13 = body.newObject("Sketcher::SketchObject", "Sketch012")
sketch13.AttachmentSupport = (doc.getObject("XZ_Plane"), [""])
sketch13.MapMode = "FlatFace"
sketch13.AttachmentOffset = App.Placement(Vector(0, 0, -0.19 * 25.4), App.Rotation())
sketch13.addGeometry([
    Part.Circle(Vector(2.1, 64.5, 0), Vector(0, 0, 1), 1.9),
    Part.Circle(Vector(2.1, 48, 0), Vector(0, 0, 1), 1.9),
    Part.Circle(Vector(2.1, 31.5, 0), Vector(0, 0, 1), 1.9),
    Part.Circle(Vector(2.1, 15, 0), Vector(0, 0, 1), 1.9),
], False)
sketch13.addConstraint([
    Sketcher.Constraint("Equal", 0, 1),
    Sketcher.Constraint("Equal", 1, 2),
    Sketcher.Constraint("Equal", 2, 3),
    Sketcher.Constraint("Vertical", 0, 3, 1, 3),
    Sketcher.Constraint("Vertical", 1, 3, 2, 3),
    Sketcher.Constraint("Vertical", 2, 3, 3, 3),
    Sketcher.Constraint("Diameter", 0, Q("0.15 in")),
    Sketcher.Constraint("DistanceY", 2, 3, 0, 3, Q("1.3 in")),
    Sketcher.Constraint("DistanceY", 3, 3, 1, 3, Q("1.3 in")),
    Sketcher.Constraint("DistanceY", 1, 3, 0, 3, Q("0.65 in")),
    Sketcher.Constraint("DistanceX", -1, 1, 0, 3, Q("2.126922 mm")),
    Sketcher.Constraint("DistanceY", -1, 1, 0, 3, Q("64.485146 mm")),
])
pocket12 = body.newObject("PartDesign::Pocket", "Pocket011")
pocket12.Profile = sketch13
pocket12.Type = "ThroughAll"
pocket12.Reversed = True

doc.recompute()
